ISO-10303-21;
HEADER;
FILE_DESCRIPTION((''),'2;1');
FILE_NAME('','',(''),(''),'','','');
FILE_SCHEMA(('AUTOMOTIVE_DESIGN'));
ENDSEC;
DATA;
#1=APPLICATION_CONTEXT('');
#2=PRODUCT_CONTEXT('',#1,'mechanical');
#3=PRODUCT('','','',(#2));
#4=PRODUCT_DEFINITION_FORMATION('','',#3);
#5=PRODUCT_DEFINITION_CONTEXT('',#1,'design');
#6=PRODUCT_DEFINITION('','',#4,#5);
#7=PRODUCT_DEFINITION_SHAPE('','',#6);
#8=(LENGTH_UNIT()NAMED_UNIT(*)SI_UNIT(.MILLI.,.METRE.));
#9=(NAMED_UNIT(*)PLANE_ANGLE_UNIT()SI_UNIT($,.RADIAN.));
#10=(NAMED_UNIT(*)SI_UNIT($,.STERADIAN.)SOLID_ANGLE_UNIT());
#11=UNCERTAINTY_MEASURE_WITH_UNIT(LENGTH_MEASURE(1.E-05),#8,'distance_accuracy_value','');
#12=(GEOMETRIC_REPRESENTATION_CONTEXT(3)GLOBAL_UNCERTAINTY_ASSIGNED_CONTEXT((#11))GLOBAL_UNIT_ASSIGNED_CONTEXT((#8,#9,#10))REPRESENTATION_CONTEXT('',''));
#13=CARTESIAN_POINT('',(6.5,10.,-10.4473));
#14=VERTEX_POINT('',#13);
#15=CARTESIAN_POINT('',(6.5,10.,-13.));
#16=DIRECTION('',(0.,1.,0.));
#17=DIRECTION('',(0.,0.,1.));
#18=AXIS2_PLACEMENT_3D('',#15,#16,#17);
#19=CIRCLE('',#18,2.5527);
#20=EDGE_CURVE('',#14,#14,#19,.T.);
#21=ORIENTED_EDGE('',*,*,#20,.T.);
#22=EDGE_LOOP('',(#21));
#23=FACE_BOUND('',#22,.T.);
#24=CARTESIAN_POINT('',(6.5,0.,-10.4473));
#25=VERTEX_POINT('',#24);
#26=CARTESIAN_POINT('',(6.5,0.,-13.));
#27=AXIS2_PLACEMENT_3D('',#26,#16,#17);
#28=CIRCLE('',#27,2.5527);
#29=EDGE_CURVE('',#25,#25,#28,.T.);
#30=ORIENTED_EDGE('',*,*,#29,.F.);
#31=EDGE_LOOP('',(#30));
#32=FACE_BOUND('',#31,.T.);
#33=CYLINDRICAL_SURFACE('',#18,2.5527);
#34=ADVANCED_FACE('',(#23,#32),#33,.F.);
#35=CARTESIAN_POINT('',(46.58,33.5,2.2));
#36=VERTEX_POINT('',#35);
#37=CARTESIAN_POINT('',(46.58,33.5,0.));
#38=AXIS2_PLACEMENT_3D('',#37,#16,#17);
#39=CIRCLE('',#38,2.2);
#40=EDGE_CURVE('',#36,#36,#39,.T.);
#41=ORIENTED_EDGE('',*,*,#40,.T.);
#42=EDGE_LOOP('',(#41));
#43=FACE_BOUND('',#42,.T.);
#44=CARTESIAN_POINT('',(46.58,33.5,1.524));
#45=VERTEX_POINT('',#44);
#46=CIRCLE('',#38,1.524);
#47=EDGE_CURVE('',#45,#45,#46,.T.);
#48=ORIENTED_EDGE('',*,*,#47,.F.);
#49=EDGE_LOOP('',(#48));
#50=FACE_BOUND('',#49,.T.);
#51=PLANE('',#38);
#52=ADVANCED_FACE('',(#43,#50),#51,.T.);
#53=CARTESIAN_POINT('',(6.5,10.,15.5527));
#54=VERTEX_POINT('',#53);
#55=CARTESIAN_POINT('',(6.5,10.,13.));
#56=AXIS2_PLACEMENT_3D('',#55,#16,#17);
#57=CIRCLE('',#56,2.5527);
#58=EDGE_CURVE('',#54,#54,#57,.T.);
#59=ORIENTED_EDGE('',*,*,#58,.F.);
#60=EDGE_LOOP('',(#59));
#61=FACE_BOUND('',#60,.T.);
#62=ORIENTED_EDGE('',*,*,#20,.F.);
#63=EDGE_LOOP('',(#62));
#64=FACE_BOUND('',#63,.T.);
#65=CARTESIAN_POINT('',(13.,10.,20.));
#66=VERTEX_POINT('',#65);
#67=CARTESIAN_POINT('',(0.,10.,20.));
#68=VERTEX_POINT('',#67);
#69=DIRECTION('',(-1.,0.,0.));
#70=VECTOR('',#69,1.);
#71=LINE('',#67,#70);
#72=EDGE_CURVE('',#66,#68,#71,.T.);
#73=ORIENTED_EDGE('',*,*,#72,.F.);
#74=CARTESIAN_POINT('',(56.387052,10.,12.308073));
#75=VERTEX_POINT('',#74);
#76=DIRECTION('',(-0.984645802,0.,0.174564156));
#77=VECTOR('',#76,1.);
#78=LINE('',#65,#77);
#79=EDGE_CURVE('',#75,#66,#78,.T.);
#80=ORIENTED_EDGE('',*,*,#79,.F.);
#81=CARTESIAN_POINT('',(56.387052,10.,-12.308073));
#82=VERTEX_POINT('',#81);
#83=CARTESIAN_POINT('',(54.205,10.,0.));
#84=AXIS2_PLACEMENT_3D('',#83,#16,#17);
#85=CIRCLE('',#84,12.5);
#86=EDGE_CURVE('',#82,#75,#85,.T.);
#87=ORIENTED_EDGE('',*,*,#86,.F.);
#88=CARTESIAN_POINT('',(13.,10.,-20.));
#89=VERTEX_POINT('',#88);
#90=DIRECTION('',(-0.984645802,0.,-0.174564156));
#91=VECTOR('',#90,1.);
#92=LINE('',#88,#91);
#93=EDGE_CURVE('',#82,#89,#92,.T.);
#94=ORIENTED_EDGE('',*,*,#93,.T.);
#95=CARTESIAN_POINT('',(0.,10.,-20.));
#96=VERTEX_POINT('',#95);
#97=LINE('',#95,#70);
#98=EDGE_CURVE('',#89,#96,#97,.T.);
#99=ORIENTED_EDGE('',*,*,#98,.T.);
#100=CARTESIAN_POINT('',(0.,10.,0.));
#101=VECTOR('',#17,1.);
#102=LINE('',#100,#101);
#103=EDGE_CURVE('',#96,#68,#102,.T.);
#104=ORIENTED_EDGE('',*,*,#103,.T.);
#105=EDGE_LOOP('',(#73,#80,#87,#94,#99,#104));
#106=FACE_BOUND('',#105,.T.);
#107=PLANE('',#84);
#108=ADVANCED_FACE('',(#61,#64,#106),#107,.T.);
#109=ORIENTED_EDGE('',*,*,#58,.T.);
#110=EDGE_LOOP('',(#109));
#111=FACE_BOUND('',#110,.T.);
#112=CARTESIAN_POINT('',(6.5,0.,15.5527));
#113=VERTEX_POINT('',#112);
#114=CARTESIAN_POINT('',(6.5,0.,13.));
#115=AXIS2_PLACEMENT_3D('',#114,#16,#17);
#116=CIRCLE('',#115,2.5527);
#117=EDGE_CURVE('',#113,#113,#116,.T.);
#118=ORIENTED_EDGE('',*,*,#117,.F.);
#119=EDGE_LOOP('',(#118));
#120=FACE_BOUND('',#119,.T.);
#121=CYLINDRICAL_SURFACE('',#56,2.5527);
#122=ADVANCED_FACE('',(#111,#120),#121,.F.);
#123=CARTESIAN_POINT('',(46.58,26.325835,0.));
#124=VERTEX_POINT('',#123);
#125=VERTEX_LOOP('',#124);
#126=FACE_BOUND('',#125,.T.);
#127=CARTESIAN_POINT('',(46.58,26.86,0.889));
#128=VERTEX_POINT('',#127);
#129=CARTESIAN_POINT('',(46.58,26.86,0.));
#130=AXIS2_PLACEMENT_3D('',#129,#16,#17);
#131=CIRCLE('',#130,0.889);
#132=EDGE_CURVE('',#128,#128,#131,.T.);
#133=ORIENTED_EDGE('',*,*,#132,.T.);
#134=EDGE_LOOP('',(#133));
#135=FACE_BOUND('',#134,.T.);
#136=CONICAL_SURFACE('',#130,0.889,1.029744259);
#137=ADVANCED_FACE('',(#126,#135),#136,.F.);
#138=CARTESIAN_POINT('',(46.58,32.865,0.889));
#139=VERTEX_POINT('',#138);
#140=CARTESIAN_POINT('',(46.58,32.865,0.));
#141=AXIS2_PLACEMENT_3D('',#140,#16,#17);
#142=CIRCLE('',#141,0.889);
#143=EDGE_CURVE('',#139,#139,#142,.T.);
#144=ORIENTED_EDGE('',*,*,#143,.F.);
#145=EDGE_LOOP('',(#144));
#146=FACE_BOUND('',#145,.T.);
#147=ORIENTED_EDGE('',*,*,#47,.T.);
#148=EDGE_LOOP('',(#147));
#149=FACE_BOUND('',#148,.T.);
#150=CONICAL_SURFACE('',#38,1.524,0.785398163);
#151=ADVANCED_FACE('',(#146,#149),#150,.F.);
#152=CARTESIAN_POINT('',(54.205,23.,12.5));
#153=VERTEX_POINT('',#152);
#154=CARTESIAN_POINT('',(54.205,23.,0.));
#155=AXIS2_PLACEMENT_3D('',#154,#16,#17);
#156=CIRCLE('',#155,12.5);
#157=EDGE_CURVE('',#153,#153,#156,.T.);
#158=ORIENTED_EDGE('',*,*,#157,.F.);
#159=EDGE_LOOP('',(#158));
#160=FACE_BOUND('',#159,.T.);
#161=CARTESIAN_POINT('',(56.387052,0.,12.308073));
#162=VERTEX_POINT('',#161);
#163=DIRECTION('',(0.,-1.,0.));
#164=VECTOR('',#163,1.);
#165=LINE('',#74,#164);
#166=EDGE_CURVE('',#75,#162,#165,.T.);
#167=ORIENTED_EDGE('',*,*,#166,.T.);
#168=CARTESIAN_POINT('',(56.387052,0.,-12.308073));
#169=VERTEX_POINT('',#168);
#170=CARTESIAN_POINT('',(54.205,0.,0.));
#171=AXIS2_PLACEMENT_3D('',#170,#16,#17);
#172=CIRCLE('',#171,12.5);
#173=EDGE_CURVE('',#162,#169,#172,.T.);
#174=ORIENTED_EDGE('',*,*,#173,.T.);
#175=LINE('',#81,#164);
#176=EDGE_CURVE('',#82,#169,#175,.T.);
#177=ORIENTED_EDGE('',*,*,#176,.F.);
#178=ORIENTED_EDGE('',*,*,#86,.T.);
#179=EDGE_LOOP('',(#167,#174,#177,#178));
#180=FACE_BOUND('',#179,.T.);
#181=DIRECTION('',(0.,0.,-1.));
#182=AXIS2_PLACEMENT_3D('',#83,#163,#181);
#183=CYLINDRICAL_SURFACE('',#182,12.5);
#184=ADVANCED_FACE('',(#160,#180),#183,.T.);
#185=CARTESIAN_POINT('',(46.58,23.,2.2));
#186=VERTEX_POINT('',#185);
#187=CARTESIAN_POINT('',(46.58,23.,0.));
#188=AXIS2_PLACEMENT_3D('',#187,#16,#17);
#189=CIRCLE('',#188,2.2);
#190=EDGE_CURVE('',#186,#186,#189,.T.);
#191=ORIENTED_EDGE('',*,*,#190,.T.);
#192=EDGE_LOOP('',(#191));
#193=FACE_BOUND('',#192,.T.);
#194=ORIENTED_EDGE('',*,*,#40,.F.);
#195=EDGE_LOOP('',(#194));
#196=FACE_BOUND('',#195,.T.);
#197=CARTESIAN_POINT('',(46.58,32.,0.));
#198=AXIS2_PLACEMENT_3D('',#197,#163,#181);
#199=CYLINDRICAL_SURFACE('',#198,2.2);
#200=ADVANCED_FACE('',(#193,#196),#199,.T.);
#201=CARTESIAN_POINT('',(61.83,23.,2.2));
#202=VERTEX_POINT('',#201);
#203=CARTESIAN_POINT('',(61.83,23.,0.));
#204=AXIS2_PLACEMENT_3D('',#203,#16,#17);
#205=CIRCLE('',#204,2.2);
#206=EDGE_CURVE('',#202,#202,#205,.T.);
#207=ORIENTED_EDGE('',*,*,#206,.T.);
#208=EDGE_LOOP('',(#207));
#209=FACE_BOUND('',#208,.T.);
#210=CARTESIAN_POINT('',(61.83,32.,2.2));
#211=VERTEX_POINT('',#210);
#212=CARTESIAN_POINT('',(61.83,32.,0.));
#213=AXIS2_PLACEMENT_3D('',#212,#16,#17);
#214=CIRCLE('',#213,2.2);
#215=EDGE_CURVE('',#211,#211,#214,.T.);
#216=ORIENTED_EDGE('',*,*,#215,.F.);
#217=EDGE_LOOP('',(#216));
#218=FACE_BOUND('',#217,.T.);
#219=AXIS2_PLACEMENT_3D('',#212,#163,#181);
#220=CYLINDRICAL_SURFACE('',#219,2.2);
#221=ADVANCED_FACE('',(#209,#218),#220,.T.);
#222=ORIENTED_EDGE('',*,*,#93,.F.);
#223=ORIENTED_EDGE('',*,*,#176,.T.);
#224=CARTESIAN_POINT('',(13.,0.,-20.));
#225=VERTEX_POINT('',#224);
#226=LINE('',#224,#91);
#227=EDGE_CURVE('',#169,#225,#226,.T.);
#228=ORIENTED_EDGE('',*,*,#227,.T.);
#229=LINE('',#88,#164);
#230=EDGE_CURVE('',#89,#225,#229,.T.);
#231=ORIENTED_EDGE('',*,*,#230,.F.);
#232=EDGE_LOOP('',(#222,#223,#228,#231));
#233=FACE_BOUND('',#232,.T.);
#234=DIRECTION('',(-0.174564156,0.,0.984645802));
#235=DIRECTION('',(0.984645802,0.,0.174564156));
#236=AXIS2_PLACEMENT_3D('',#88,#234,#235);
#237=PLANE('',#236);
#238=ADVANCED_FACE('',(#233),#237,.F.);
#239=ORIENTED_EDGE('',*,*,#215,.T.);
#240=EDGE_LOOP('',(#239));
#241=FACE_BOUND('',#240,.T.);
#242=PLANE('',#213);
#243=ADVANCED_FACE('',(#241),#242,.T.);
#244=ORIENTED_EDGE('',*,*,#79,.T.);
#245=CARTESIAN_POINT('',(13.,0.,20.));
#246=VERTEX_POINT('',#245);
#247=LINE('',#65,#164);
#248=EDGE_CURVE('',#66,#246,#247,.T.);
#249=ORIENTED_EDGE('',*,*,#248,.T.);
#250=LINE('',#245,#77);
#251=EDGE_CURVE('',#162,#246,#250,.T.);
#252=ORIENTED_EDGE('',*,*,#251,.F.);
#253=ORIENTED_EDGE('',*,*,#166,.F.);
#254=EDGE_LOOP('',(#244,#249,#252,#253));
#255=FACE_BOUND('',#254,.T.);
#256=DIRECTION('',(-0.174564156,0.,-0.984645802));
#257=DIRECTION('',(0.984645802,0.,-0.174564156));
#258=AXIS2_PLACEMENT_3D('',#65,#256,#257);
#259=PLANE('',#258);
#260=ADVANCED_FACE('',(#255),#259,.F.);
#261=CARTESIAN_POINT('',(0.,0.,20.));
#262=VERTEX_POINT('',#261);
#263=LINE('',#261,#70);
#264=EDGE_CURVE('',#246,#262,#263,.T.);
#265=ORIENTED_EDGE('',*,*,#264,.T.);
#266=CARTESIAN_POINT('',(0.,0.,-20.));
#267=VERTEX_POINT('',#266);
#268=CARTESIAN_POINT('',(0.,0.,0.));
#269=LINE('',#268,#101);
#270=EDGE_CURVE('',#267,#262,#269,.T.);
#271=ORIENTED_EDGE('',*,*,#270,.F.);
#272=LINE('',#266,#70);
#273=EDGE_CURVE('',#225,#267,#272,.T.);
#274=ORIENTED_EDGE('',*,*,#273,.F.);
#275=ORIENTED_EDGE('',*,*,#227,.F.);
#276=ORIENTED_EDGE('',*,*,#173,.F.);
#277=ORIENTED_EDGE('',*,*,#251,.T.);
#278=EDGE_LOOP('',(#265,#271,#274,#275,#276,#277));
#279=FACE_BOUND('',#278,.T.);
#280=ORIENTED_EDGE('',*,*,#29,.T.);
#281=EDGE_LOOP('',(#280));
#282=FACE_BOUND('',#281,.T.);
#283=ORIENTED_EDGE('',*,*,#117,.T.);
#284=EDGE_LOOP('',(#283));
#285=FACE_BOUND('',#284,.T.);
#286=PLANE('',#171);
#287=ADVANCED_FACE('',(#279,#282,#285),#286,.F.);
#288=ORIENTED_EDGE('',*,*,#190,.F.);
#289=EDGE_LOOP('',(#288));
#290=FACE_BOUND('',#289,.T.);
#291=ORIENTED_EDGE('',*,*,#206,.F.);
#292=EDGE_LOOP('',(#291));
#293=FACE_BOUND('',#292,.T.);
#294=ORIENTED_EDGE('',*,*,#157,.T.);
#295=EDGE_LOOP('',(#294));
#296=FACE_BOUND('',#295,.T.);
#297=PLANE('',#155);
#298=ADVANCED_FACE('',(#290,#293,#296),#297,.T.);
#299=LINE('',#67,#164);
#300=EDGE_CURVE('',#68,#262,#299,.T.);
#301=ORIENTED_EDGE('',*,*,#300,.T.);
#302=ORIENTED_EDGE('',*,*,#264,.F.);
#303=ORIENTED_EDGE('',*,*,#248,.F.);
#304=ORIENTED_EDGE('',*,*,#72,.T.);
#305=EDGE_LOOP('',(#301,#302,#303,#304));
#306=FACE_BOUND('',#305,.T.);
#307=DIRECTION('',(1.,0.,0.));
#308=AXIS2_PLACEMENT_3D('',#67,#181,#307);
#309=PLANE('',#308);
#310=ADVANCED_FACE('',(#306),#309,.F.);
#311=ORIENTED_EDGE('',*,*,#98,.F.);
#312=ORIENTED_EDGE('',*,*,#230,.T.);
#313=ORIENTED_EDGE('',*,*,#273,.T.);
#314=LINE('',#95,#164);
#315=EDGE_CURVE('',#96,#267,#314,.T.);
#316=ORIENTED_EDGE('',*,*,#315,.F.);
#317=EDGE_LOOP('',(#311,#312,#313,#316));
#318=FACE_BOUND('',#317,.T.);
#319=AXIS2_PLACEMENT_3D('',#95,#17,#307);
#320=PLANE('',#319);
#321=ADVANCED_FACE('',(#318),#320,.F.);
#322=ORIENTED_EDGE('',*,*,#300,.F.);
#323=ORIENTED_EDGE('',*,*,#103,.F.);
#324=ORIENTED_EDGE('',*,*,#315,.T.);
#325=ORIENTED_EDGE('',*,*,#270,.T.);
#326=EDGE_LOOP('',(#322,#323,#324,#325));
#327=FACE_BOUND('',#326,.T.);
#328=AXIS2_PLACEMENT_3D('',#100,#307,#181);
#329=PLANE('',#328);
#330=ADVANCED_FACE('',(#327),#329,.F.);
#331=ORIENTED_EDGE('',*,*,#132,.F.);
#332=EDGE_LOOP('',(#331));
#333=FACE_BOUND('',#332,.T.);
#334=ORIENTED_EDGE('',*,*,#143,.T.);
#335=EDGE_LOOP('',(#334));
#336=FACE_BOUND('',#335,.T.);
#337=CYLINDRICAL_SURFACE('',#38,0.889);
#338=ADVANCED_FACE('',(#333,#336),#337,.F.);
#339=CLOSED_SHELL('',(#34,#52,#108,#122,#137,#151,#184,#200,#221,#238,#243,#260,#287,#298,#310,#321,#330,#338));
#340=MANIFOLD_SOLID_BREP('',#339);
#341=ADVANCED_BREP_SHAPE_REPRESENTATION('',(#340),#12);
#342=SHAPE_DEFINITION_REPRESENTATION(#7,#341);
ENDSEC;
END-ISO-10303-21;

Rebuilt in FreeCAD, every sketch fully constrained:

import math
import FreeCAD as App
import Part
import Sketcher
from FreeCAD import Vector

doc = App.newDocument("Part")
params = doc.addObject("Spreadsheet::Sheet", "Params")
for row, (alias, value) in enumerate([
    ("sketch1_radius", "12.5 mm"),
    ("sketch1_width", "13 mm"),
    ("sketch1_height", "20 mm"),
    ("pad1_length", "10 mm"),
    ("sketch2_diameter", "25 mm"),
    ("pad2_length", "13 mm"),
    ("hole_diameter", "5.1054 mm"),
    ("hole_depth", "135.89 mm"),
    ("sketch4_diameter", "4.4 mm"),
    ("pad3_length", "9 mm"),
    ("sketch5_diameter", "4.4 mm"),
    ("pad4_length", "1.5 mm"),
    ("hole2_diameter", "1.778 mm"),
    ("hole2_depth", "6.64 mm"),
    ("hole2_csink_diameter", "3.048 mm"),
], start=1):
    params.set(f"A{row}", alias)
    params.set(f"B{row}", "=" + value)
    params.setAlias(f"B{row}", alias)

body = doc.addObject("PartDesign::Body", "Body")

# Sketch on XZ plane
sketch1 = body.newObject("Sketcher::SketchObject", "Sketch")
sketch1.AttachmentSupport = (doc.getObject("XZ_Plane"), [""])
sketch1.MapMode = "FlatFace"
sketch1.addGeometry(Part.LineSegment(Vector(0, -20, 0), Vector(0, 0, 0)), False)
sketch1.addGeometry(Part.LineSegment(Vector(0, 0, 0), Vector(67, 0, 0)), False)
sketch1.addGeometry(Part.ArcOfCircle(Part.Circle(Vector(54, 0, 0), Vector(0, 0, 1), 13), math.radians(-80), math.radians(0)), False)
sketch1.addGeometry(Part.LineSegment(Vector(56, -12, 0), Vector(13, -20, 0)), False)
sketch1.addGeometry(Part.LineSegment(Vector(13, -20, 0), Vector(0, -20, 0)), False)
sketch1.addConstraint(Sketcher.Constraint("Coincident", 0, 2, 1, 1))
sketch1.addConstraint(Sketcher.Constraint("Coincident", 1, 2, 2, 2))
sketch1.addConstraint(Sketcher.Constraint("Tangent", 2, 1, 3, 1))
sketch1.addConstraint(Sketcher.Constraint("Coincident", 3, 2, 4, 1))
sketch1.addConstraint(Sketcher.Constraint("Coincident", 4, 2, 0, 1))
sketch1.addConstraint(Sketcher.Constraint("Vertical", 0))
sketch1.addConstraint(Sketcher.Constraint("Horizontal", 1))
sketch1.addConstraint(Sketcher.Constraint("Horizontal", 4))
sketch1.addConstraint(Sketcher.Constraint("Coincident", 0, 2, -1, 1))
sketch1.addConstraint(Sketcher.Constraint("PointOnObject", 2, 3, -1))
sketch1.addConstraint(Sketcher.Constraint("Radius", 2, 12.5))
sketch1.addConstraint(Sketcher.Constraint("DistanceX", 4, 2, 4, 1, 13.0))
sketch1.addConstraint(Sketcher.Constraint("DistanceY", 0, 1, 0, 2, 20.0))
sketch1.addConstraint(Sketcher.Constraint("DistanceX", 1, 1, 1, 2, 66.705))
sketch1.setExpression("Constraints[10]", "Params.sketch1_radius")
sketch1.setExpression("Constraints[11]", "Params.sketch1_width")
sketch1.setExpression("Constraints[12]", "Params.sketch1_height")
pad1 = body.newObject("PartDesign::Pad", "Pad")
pad1.Profile = sketch1
pad1.setExpression("Length", "Params.pad1_length")
pad1.Reversed = True
body2 = doc.addObject("PartDesign::Body", "Body001")
doc.recompute()

body2.BaseFeature = body
doc.recompute()

mirroring = doc.addObject("Part::Mirroring", "Mirroring")
mirroring.Source = body
mirroring.Base = Vector(66.705, 10, 0)
mirroring.Normal = Vector(0, 0, -1)
body3 = doc.addObject("PartDesign::Body", "Body002")
body3.BaseFeature = mirroring
boolean = body2.newObject("PartDesign::Boolean", "Boolean")
boolean.Type = "Fuse"
boolean.addObjects([body3])
doc.recompute()

# Sketch on XZ plane
sketch2 = body2.newObject("Sketcher::SketchObject", "Sketch001")
sketch2.AttachmentSupport = (doc.getObject("XZ_Plane001"), [""])
sketch2.MapMode = "FlatFace"
sketch2.AttachmentOffset = App.Placement(Vector(0, 0, -10), App.Rotation())
sketch2.addGeometry(Part.Circle(Vector(54, 0, 0), Vector(0, 0, 1), 12), False)
sketch2.addConstraint(Sketcher.Constraint("PointOnObject", 0, 3, -1))
sketch2.addConstraint(Sketcher.Constraint("Diameter", 0, 25.0))
sketch2.addConstraint(Sketcher.Constraint("DistanceX", -1, 1, 0, 3, 54.205))
sketch2.setExpression("Constraints[1]", "Params.sketch2_diameter")
pad2 = body2.newObject("PartDesign::Pad", "Pad001")
pad2.Profile = sketch2
pad2.setExpression("Length", "Params.pad2_length")
pad2.Reversed = True

# Sketch on XZ plane
sketch3 = body2.newObject("Sketcher::SketchObject", "Sketch002")
sketch3.AttachmentSupport = (doc.getObject("XZ_Plane001"), [""])
sketch3.MapMode = "FlatFace"
sketch3.AttachmentOffset = App.Placement(Vector(0, 0, -10), App.Rotation())
sketch3.addGeometry(Part.Circle(Vector(6.5, -13, 0), Vector(0, 0, 1), 2.6), False)
sketch3.addGeometry(Part.Circle(Vector(6.5, 13, 0), Vector(0, 0, 1), 2.6), False)
sketch3.addConstraint(Sketcher.Constraint("Equal", 0, 1))
sketch3.addConstraint(Sketcher.Constraint("Symmetric", 0, 3, 1, 3, -1))
sketch3.addConstraint(Sketcher.Constraint("DistanceY", 0, 3, -1, 1, 13.0))
sketch3.addConstraint(Sketcher.Constraint("Diameter", 0, 5.1054))
sketch3.addConstraint(Sketcher.Constraint("DistanceX", -1, 1, 0, 3, 6.5))
doc.recompute()
hole = body2.newObject("PartDesign::Hole", "Hole")
hole.Profile = sketch3
hole.ThreadType = "None"
hole.setExpression("Diameter", "Params.hole_diameter")
hole.DepthType = "Dimension"
hole.setExpression("Depth", "Params.hole_depth")
hole.DrillPoint = "Angled"
hole.DrillPointAngle = 118
hole.Reversed = True

# Sketch on XZ plane
sketch4 = body2.newObject("Sketcher::SketchObject", "Sketch003")
sketch4.AttachmentSupport = (doc.getObject("XZ_Plane001"), [""])
sketch4.MapMode = "FlatFace"
sketch4.AttachmentOffset = App.Placement(Vector(0, 0, -23), App.Rotation())
sketch4.addGeometry(Part.Circle(Vector(61.8, 0, 0), Vector(0, 0, 1), 2.2), False)
sketch4.addGeometry(Part.Circle(Vector(46.6, 0, 0), Vector(0, 0, 1), 2.2), False)
sketch4.addConstraint(Sketcher.Constraint("Equal", 0, 1))
sketch4.addConstraint(Sketcher.Constraint("PointOnObject", 0, 3, -1))
sketch4.addConstraint(Sketcher.Constraint("PointOnObject", 1, 3, -1))
sketch4.addConstraint(Sketcher.Constraint("Diameter", 0, 4.4))
sketch4.addConstraint(Sketcher.Constraint("DistanceX", -1, 1, 0, 3, 61.83))
sketch4.addConstraint(Sketcher.Constraint("DistanceX", -1, 1, 1, 3, 46.58))
sketch4.setExpression("Constraints[3]", "Params.sketch4_diameter")
pad3 = body2.newObject("PartDesign::Pad", "Pad002")
pad3.Profile = sketch4
pad3.setExpression("Length", "Params.pad3_length")
pad3.Reversed = True

# Sketch on XZ plane
sketch5 = body2.newObject("Sketcher::SketchObject", "Sketch004")
sketch5.AttachmentSupport = (doc.getObject("XZ_Plane001"), [""])
sketch5.MapMode = "FlatFace"
sketch5.AttachmentOffset = App.Placement(Vector(0, 0, -32), App.Rotation())
sketch5.addGeometry(Part.Circle(Vector(46.6, 0, 0), Vector(0, 0, 1), 2.2), False)
sketch5.addConstraint(Sketcher.Constraint("PointOnObject", 0, 3, -1))
sketch5.addConstraint(Sketcher.Constraint("Diameter", 0, 4.4))
sketch5.addConstraint(Sketcher.Constraint("DistanceX", -1, 1, 0, 3, 46.58))
sketch5.setExpression("Constraints[1]", "Params.sketch5_diameter")
pad4 = body2.newObject("PartDesign::Pad", "Pad003")
pad4.Profile = sketch5
pad4.setExpression("Length", "Params.pad4_length")
pad4.Reversed = True

# Sketch on XZ plane
sketch6 = body2.newObject("Sketcher::SketchObject", "Sketch005")
sketch6.AttachmentSupport = (doc.getObject("XZ_Plane001"), [""])
sketch6.MapMode = "FlatFace"
sketch6.AttachmentOffset = App.Placement(Vector(0, 0, -33.5), App.Rotation())
sketch6.addGeometry(Part.Circle(Vector(46.6, 0, 0), Vector(0, 0, 1), 0.9), False)
sketch6.addConstraint(Sketcher.Constraint("PointOnObject", 0, 3, -1))
sketch6.addConstraint(Sketcher.Constraint("Diameter", 0, 1.778))
sketch6.addConstraint(Sketcher.Constraint("DistanceX", -1, 1, 0, 3, 46.58))
doc.recompute()
hole2 = body2.newObject("PartDesign::Hole", "Hole001")
hole2.Profile = sketch6
hole2.ThreadType = "None"
hole2.setExpression("Diameter", "Params.hole2_diameter")
hole2.DepthType = "Dimension"
hole2.setExpression("Depth", "Params.hole2_depth")
hole2.DrillPoint = "Angled"
hole2.DrillPointAngle = 118
hole2.HoleCutType = "Countersink"
hole2.setExpression("HoleCutDiameter", "Params.hole2_csink_diameter")
hole2.HoleCutCountersinkAngle = 90
hole2.Reversed = True
mirroring.Visibility = False

doc.recompute()
